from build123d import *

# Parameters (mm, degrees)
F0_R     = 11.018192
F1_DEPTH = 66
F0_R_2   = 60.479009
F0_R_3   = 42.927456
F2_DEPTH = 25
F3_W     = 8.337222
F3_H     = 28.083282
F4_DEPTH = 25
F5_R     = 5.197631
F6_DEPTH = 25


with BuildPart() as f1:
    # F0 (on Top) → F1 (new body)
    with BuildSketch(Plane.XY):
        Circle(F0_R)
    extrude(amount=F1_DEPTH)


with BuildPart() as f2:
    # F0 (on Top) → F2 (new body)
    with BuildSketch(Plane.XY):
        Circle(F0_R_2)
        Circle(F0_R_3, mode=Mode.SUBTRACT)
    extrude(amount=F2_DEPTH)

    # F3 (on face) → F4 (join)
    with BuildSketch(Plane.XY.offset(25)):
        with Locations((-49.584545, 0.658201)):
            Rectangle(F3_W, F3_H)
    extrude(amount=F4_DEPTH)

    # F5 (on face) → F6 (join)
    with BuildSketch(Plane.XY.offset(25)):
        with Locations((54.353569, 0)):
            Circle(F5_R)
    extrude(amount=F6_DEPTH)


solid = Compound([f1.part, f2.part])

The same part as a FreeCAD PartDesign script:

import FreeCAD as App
import Part
import Sketcher
Q = App.Units.Quantity

doc = App.newDocument("Part")
body = doc.addObject("PartDesign::Body", "Body")

# Sketch on XY plane
sketch1 = doc.addObject("Sketcher::SketchObject", "Sketch")
body.addObject(sketch1)
sketch1.AttachmentSupport = (doc.XY_Plane, [""])
sketch1.MapMode = "FlatFace"
sketch1.addGeometry(Part.Circle(App.Vector(0, 0, 0), App.Vector(0, 0, 1), 11), False)
sketch1.addConstraint([
    Sketcher.Constraint("Coincident", 0, 3, -1, 1),
    Sketcher.Constraint("Diameter", 0, Q("22.036384 mm")),
])
pad1 = doc.addObject("PartDesign::Pad", "Pad")
body.addObject(pad1)
pad1.Profile = sketch1
pad1.Length = 66
body2 = doc.addObject("PartDesign::Body", "Body001")

# Sketch on XY plane
sketch2 = doc.addObject("Sketcher::SketchObject", "Sketch001")
body2.addObject(sketch2)
sketch2.AttachmentSupport = (doc.getObject("XY_Plane001"), [""])
sketch2.MapMode = "FlatFace"
sketch2.addGeometry([
    Part.Circle(App.Vector(0, 0, 0), App.Vector(0, 0, 1), 60),
    Part.Circle(App.Vector(0, 0, 0), App.Vector(0, 0, 1), 43),
], False)
sketch2.addConstraint([
    Sketcher.Constraint("Coincident", 0, 3, -1, 1),
    Sketcher.Constraint("Coincident", 1, 3, -1, 1),
    Sketcher.Constraint("Diameter", 1, Q("85.854912 mm")),
    Sketcher.Constraint("Diameter", 0, Q("120.958018 mm")),
])
pad2 = doc.addObject("PartDesign::Pad", "Pad001")
body2.addObject(pad2)
pad2.Profile = sketch2
pad2.Length = 25

# Sketch on XY plane
sketch3 = doc.addObject("Sketcher::SketchObject", "Sketch002")
body2.addObject(sketch3)
sketch3.AttachmentSupport = (doc.getObject("XY_Plane001"), [""])
sketch3.MapMode = "FlatFace"
sketch3.AttachmentOffset = App.Placement(App.Vector(0, 0, 25), App.Rotation())
sketch3.addGeometry([
    Part.LineSegment(App.Vector(-54, 15, 0), App.Vector(-54, -13, 0)),
    Part.LineSegment(App.Vector(-54, -13, 0), App.Vector(-45, -13, 0)),
    Part.LineSegment(App.Vector(-45, -13, 0), App.Vector(-45, 15, 0)),
    Part.LineSegment(App.Vector(-45, 15, 0), App.Vector(-54, 15, 0)),
], False)
sketch3.addConstraint([
    Sketcher.Constraint("Coincident", 0, 2, 1, 1),
    Sketcher.Constraint("Coincident", 1, 2, 2, 1),
    Sketcher.Constraint("Coincident", 2, 2, 3, 1),
    Sketcher.Constraint("Coincident", 3, 2, 0, 1),
    Sketcher.Constraint("Vertical", 0),
    Sketcher.Constraint("Horizontal", 1),
    Sketcher.Constraint("Vertical", 2),
    Sketcher.Constraint("Horizontal", 3),
    Sketcher.Constraint("DistanceX", 1, 1, 1, 2, Q("8.337222 mm")),
    Sketcher.Constraint("DistanceY", 0, 2, 0, 1, Q("28.083282 mm")),
    Sketcher.Constraint("DistanceY", 0, 2, -1, 1, Q("13.38344 mm")),
    Sketcher.Constraint("DistanceX", 0, 2, -1, 1, Q("53.753156 mm")),
])
pad3 = doc.addObject("PartDesign::Pad", "Pad002")
body2.addObject(pad3)
pad3.Profile = sketch3
pad3.Length = 25

# Sketch on XY plane
sketch4 = doc.addObject("Sketcher::SketchObject", "Sketch003")
body2.addObject(sketch4)
sketch4.AttachmentSupport = (doc.getObject("XY_Plane001"), [""])
sketch4.MapMode = "FlatFace"
sketch4.AttachmentOffset = App.Placement(App.Vector(0, 0, 25), App.Rotation())
sketch4.addGeometry(Part.Circle(App.Vector(54, 0, 0), App.Vector(0, 0, 1), 5), False)
sketch4.addConstraint([
    Sketcher.Constraint("PointOnObject", 0, 3, -1),
    Sketcher.Constraint("Diameter", 0, Q("10.395262 mm")),
    Sketcher.Constraint("DistanceX", -1, 1, 0, 3, Q("54.353569 mm")),
])
pad4 = doc.addObject("PartDesign::Pad", "Pad003")
body2.addObject(pad4)
pad4.Profile = sketch4
pad4.Length = 25

doc.recompute()
